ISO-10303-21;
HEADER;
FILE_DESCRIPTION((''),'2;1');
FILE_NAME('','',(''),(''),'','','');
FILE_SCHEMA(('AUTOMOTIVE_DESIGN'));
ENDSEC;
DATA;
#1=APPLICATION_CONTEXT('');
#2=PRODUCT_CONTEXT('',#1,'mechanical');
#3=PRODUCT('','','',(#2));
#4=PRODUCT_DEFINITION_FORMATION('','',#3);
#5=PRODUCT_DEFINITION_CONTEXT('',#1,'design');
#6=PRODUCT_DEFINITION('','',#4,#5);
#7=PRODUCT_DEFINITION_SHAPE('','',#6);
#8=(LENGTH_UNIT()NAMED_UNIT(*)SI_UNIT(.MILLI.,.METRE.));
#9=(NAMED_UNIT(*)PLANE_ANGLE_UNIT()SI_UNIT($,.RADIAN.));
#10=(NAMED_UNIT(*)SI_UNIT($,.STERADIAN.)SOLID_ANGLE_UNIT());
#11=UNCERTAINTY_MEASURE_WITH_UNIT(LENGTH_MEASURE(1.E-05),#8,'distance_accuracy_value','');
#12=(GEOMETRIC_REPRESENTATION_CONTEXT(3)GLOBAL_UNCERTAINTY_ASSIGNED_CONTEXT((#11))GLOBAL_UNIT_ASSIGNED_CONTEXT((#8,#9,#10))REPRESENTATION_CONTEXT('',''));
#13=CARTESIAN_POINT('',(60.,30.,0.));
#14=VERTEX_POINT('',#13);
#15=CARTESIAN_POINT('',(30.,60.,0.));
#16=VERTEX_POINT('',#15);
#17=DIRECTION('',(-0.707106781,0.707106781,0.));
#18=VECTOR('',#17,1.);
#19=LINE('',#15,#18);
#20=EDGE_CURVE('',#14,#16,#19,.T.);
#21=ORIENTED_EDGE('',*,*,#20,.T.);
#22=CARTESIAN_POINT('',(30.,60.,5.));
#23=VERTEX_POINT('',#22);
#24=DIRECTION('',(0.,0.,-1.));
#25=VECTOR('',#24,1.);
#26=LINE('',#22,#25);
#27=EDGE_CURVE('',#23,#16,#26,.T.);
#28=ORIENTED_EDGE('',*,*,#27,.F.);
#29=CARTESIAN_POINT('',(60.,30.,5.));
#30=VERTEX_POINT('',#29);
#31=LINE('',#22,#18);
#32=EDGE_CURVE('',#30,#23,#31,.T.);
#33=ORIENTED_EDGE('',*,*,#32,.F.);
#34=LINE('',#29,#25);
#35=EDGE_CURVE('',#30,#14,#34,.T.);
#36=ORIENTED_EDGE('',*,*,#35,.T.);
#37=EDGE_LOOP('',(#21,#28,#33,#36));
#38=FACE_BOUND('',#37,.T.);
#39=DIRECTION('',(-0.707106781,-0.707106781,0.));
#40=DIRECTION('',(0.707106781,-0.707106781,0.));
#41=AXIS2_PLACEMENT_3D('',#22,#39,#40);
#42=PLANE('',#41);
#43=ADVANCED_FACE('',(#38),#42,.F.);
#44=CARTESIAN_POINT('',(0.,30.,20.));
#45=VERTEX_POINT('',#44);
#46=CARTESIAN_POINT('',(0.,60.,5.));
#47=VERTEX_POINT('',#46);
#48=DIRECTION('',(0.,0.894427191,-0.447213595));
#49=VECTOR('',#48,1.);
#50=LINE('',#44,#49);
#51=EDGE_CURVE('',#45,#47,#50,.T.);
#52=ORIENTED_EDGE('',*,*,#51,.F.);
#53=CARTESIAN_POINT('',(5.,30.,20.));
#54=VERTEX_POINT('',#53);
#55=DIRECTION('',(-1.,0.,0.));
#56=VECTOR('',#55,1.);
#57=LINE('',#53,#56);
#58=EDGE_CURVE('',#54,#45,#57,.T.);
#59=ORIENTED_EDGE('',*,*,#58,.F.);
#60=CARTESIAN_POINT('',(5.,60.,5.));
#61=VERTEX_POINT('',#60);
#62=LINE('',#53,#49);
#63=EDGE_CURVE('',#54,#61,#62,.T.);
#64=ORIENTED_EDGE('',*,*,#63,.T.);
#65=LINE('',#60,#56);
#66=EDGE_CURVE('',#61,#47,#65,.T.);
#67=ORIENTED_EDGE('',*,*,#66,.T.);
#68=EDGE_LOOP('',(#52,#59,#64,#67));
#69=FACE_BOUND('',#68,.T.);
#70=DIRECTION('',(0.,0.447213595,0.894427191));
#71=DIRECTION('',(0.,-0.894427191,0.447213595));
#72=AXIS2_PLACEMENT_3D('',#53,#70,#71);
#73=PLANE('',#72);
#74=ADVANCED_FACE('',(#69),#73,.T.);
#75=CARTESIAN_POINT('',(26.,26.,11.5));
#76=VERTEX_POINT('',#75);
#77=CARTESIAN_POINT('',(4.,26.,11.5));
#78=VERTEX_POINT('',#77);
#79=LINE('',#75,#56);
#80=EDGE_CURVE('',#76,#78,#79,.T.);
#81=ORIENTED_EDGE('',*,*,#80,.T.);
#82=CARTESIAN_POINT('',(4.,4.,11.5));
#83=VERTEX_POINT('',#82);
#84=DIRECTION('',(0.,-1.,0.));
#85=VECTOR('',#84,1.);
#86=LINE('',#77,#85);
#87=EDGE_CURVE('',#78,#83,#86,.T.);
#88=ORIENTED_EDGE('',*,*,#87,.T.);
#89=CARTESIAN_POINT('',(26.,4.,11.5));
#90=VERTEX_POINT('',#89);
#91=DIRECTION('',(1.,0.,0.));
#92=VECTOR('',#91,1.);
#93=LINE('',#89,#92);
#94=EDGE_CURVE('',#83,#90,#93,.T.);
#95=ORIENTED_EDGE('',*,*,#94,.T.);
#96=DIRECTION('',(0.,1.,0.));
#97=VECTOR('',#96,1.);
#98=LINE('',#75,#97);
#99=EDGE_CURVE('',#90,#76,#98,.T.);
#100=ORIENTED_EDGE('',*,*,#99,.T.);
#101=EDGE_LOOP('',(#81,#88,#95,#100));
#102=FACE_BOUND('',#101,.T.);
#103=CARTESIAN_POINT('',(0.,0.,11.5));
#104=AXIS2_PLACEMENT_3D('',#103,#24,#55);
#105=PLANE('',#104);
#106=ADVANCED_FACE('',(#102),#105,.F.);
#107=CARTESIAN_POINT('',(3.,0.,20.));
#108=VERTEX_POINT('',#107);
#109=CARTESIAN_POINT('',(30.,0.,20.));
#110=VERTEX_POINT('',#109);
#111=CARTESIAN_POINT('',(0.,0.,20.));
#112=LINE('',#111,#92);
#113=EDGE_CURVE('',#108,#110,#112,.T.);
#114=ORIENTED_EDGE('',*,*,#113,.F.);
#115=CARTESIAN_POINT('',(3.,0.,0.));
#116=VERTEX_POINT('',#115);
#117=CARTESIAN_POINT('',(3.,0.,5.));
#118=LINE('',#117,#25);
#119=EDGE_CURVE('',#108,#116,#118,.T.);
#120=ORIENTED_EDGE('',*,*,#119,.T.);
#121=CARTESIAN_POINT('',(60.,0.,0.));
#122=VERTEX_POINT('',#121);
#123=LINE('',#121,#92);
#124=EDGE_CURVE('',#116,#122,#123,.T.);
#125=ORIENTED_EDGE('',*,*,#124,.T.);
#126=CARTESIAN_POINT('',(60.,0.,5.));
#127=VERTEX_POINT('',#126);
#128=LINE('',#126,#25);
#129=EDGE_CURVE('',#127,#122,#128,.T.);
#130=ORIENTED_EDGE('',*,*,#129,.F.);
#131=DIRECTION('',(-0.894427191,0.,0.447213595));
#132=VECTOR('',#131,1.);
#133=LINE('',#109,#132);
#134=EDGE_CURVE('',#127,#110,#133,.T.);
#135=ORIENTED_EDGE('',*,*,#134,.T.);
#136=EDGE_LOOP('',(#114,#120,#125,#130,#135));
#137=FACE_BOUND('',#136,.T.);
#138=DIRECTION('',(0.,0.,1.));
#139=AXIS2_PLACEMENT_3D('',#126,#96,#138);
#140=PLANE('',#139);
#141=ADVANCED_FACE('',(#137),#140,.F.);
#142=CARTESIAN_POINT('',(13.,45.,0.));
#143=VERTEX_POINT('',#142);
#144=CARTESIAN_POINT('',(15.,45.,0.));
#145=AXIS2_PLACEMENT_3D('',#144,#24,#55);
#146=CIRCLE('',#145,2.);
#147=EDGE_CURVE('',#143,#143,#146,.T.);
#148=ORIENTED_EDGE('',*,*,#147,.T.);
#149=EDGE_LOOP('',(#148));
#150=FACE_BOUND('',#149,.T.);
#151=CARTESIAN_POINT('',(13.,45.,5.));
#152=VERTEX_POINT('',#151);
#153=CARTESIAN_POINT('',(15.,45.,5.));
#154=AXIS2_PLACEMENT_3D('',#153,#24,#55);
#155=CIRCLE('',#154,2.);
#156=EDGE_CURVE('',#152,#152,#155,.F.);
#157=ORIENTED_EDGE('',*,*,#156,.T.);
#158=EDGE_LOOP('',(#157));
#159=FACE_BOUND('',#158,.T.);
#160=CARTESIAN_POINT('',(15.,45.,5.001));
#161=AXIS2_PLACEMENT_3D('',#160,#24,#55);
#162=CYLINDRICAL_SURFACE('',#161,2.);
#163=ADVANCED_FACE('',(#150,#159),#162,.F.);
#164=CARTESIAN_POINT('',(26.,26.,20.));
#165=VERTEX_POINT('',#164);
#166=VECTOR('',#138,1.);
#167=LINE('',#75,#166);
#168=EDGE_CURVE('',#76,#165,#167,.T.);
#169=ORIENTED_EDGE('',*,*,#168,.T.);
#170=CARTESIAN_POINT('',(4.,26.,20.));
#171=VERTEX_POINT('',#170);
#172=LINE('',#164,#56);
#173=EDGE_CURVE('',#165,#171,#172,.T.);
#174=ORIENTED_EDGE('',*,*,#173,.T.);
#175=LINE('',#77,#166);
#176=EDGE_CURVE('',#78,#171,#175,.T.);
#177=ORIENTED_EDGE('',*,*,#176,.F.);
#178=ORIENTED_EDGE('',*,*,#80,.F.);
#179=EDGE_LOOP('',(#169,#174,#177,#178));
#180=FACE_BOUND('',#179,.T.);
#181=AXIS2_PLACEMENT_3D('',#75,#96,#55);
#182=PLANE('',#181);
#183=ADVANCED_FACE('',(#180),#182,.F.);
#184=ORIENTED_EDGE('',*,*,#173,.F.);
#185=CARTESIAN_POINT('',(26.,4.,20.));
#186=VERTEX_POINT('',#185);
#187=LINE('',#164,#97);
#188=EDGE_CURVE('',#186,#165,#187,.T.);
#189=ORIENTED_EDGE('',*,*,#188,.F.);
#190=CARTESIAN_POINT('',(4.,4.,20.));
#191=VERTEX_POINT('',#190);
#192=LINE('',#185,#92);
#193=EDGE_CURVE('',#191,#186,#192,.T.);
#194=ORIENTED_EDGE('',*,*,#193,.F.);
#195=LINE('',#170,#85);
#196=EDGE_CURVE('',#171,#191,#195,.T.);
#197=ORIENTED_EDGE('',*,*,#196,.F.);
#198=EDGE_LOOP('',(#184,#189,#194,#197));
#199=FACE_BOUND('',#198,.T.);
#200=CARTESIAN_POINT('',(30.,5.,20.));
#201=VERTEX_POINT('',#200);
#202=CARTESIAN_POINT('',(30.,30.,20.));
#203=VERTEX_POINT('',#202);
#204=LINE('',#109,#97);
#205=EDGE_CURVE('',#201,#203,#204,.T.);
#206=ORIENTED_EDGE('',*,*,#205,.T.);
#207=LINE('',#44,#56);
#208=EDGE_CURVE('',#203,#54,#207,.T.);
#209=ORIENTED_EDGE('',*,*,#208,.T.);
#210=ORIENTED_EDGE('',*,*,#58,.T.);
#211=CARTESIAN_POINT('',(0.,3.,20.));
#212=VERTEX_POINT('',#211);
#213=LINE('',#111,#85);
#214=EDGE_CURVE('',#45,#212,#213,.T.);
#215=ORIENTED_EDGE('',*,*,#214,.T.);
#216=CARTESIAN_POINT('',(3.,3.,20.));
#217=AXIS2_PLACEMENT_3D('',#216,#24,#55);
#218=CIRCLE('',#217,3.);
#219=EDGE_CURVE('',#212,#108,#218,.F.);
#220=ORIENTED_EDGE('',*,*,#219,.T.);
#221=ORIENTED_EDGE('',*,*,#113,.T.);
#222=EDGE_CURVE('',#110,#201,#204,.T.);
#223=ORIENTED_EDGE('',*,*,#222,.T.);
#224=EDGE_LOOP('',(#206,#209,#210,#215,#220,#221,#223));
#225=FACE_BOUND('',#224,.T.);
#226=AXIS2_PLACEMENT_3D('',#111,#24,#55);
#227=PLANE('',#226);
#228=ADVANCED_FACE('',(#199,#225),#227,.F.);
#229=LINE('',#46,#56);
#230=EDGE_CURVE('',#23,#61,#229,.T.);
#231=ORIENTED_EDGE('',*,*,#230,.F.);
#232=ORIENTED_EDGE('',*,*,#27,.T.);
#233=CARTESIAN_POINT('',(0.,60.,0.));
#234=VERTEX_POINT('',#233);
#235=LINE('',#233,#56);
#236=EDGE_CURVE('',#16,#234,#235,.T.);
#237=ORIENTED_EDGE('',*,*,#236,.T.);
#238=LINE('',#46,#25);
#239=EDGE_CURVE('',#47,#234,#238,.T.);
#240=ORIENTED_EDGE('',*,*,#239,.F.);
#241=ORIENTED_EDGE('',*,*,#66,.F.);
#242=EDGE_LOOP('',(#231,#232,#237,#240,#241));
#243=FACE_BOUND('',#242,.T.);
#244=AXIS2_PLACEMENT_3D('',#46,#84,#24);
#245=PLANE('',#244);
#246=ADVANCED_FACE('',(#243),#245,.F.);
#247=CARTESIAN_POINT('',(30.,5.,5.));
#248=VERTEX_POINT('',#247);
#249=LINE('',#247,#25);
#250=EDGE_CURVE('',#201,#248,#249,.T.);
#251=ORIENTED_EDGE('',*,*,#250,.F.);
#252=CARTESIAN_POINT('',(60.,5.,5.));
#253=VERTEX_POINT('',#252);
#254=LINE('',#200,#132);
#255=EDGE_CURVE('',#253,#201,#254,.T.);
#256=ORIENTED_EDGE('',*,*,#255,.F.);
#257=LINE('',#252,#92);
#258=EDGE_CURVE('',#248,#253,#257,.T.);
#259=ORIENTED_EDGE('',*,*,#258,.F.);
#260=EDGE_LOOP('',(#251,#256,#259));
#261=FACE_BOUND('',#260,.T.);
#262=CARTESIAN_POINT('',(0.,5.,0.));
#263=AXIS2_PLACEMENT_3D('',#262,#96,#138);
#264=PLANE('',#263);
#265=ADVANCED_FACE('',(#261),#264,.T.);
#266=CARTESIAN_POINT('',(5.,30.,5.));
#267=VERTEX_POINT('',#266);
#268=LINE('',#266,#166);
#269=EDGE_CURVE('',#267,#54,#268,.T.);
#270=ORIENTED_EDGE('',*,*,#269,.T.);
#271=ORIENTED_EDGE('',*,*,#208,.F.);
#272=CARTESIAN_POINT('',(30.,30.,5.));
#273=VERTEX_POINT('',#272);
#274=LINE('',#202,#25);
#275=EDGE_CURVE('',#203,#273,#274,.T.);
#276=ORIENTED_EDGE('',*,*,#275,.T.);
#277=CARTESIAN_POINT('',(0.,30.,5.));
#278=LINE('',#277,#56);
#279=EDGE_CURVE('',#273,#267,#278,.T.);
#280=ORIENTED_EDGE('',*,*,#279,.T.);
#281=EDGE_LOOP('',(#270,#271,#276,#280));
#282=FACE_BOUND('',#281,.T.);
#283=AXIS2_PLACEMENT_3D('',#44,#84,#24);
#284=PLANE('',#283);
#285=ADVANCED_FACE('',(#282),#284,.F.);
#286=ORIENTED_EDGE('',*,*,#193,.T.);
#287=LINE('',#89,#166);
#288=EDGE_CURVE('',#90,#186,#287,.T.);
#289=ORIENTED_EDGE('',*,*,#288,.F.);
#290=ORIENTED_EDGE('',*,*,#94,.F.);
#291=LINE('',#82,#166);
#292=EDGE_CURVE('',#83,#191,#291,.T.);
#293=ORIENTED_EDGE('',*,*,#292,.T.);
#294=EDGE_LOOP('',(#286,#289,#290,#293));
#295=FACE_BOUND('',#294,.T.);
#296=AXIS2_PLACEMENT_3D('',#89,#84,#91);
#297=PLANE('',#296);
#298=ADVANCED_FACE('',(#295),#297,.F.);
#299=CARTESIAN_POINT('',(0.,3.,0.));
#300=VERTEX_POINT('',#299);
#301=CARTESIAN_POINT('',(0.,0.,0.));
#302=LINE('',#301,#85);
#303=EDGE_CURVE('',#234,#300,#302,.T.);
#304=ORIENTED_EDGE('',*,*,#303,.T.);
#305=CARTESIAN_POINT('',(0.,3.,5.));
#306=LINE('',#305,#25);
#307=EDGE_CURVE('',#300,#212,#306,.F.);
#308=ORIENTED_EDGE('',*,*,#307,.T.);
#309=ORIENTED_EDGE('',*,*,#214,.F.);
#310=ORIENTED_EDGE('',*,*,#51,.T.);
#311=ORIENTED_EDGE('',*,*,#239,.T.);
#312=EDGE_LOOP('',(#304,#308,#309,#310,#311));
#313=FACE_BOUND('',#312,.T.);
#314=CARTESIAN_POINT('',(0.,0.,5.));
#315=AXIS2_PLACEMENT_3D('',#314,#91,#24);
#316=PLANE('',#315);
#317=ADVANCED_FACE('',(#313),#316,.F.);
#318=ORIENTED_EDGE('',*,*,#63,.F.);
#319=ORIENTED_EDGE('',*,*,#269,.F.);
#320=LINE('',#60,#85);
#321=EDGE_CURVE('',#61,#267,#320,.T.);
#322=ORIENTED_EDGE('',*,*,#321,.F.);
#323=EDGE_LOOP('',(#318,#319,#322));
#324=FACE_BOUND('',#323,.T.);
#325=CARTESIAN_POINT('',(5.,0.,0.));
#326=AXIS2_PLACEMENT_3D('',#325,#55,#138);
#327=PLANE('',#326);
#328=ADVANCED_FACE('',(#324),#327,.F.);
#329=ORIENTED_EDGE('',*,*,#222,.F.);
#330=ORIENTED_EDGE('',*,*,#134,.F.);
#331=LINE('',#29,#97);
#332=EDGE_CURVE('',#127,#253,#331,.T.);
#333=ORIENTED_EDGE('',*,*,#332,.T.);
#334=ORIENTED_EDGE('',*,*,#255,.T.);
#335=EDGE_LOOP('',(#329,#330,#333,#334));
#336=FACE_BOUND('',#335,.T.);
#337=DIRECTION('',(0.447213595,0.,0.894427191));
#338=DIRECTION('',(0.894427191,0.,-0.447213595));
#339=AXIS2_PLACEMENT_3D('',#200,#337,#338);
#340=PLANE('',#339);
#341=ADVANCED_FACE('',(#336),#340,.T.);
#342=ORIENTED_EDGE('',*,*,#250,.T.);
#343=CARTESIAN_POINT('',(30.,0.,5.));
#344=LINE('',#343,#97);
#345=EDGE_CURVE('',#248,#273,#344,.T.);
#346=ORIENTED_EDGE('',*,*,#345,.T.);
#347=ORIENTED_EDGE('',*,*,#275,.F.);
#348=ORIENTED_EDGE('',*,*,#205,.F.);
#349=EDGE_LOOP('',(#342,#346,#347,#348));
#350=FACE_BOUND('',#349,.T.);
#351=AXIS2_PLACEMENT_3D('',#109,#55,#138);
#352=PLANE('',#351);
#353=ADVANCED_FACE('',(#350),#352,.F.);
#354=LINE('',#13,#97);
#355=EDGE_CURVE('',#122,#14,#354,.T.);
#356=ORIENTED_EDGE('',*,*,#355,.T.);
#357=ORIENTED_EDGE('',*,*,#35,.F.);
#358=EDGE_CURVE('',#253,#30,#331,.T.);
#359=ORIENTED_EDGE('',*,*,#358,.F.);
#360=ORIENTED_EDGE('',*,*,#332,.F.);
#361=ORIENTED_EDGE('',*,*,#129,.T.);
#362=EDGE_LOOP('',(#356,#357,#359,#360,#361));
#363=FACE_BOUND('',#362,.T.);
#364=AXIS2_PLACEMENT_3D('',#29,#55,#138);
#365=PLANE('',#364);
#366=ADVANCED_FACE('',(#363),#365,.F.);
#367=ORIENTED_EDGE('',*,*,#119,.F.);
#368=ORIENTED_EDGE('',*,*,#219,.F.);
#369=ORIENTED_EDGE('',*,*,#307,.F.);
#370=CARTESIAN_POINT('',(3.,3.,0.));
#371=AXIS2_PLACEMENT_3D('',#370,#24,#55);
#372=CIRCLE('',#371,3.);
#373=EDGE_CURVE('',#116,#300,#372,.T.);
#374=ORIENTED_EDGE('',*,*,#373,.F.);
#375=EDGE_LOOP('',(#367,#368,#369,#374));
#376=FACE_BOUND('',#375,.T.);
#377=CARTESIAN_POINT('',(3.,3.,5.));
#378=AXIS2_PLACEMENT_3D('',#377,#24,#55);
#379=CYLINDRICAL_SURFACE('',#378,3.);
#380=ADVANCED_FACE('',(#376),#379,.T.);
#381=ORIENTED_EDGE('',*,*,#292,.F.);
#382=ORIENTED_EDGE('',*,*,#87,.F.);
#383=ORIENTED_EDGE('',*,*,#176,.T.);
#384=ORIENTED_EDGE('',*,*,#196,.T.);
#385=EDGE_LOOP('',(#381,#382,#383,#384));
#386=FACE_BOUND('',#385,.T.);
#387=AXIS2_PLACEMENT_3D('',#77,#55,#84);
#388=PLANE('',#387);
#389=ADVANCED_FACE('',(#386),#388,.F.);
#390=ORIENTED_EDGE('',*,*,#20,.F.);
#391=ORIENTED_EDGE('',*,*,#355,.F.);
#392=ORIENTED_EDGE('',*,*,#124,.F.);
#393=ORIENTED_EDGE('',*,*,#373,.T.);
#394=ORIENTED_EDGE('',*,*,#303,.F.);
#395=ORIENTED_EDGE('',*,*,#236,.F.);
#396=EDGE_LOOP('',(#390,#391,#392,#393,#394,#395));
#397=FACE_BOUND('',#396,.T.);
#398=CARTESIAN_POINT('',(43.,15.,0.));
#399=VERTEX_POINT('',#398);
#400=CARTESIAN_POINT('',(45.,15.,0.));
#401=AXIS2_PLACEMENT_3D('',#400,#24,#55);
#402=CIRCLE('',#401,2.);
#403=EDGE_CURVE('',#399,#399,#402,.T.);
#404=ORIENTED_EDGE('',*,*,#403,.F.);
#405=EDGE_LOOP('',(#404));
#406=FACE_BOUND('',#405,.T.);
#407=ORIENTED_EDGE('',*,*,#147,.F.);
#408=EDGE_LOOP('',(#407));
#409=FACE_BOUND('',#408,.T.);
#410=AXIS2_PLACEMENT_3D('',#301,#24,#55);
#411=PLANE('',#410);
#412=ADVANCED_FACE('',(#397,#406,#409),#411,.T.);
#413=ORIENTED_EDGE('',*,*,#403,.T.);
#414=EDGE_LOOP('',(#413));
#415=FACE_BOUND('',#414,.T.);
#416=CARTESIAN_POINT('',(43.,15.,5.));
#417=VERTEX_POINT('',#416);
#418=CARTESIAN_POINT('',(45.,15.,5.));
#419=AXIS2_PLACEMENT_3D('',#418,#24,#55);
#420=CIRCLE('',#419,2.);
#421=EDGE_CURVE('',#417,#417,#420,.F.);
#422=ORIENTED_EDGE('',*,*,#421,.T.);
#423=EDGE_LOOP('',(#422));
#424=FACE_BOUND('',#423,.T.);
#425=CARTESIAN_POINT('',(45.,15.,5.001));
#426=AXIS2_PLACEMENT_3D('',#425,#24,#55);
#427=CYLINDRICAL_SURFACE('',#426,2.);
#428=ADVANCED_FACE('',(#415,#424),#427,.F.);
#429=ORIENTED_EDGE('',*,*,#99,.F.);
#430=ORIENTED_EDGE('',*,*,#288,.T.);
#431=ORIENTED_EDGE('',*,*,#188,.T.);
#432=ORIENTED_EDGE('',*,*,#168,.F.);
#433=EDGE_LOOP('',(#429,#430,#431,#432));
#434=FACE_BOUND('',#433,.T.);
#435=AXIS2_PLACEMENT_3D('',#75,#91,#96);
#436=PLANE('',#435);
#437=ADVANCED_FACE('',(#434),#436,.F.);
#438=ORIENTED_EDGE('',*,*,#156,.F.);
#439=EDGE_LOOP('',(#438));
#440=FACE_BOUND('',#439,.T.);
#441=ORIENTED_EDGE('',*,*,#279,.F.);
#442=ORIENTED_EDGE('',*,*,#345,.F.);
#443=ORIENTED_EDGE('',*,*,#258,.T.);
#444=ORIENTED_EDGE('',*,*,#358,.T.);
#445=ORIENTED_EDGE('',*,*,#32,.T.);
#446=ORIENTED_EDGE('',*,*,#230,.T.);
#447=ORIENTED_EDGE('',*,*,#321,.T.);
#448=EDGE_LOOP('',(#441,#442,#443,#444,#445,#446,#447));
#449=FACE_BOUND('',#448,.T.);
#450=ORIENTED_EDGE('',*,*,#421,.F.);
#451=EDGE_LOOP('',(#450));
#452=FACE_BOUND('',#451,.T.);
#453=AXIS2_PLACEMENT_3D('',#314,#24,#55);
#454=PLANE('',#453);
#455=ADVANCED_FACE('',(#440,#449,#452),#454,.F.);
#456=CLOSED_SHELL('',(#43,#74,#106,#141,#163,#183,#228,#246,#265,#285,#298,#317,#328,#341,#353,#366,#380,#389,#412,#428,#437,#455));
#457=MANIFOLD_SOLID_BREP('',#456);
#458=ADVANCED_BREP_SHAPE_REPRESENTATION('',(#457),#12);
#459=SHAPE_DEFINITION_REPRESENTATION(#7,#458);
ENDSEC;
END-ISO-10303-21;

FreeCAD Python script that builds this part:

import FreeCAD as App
import Part
import Sketcher
from FreeCAD import Vector


def edges_at(feature, points):
    """Names of the edges that pass closest to the given points."""
    edges = feature.Shape.Edges
    near = lambda p: min(range(len(edges)), key=lambda i: edges[i].distToShape(Part.Vertex(*p))[0])
    return sorted({f"Edge{near(p) + 1}" for p in points})


def add_polygon(sketch, points):
    """Adds a closed chain of lines whose ends are joined by coincident constraints."""
    first, n = sketch.GeometryCount, len(points)
    for a, b in zip(points, points[1:] + points[:1]):
        sketch.addGeometry(Part.LineSegment(App.Vector(*a, 0), App.Vector(*b, 0)), False)
    for i in range(n):
        sketch.addConstraint(Sketcher.Constraint("Coincident", first + i, 2, first + (i + 1) % n, 1))

doc = App.newDocument("Part")
body = doc.addObject("PartDesign::Body", "Body")

# Sketch on XY plane
sketch1 = body.newObject("Sketcher::SketchObject", "Sketch")
sketch1.AttachmentSupport = (doc.getObject("XY_Plane"), [""])
sketch1.MapMode = "FlatFace"
add_polygon(sketch1, [(0, 60), (0, 0), (60, 0), (60, 30), (30, 60)])  # lines 0-4
sketch1.addConstraint([
    Sketcher.Constraint("Vertical", 0),
    Sketcher.Constraint("Horizontal", 1),
    Sketcher.Constraint("Vertical", 2),
    Sketcher.Constraint("Horizontal", 4),
    Sketcher.Constraint("Coincident", 0, 2, -1, 1),
    Sketcher.Constraint("Equal", 1, 0),
    Sketcher.Constraint("Equal", 4, 2),
    Sketcher.Constraint("DistanceX", 1, 1, 1, 2, 60.0),
    Sketcher.Constraint("DistanceX", 4, 2, 4, 1, 30.0),
])
pad1 = body.newObject("PartDesign::Pad", "Pad")
pad1.Profile = sketch1
pad1.Length = 5

# Sketch on XY plane
sketch2 = body.newObject("Sketcher::SketchObject", "Sketch001")
sketch2.AttachmentSupport = (doc.getObject("XY_Plane"), [""])
sketch2.MapMode = "FlatFace"
sketch2.addGeometry(Part.Circle(Vector(45, 15, 0), Vector(0, 0, 1), 2), False)
sketch2.addConstraint([
    Sketcher.Constraint("Diameter", 0, 4.0),
    Sketcher.Constraint("DistanceX", -1, 1, 0, 3, 45.0),
    Sketcher.Constraint("DistanceY", -1, 1, 0, 3, 15.0),
])
pocket1 = body.newObject("PartDesign::Pocket", "Pocket")
pocket1.Profile = sketch2
pocket1.Type = "UpToFirst"
pocket1.Reversed = True

# Sketch on XY plane
sketch3 = body.newObject("Sketcher::SketchObject", "Sketch002")
sketch3.AttachmentSupport = (doc.getObject("XY_Plane"), [""])
sketch3.MapMode = "FlatFace"
sketch3.addGeometry(Part.Circle(Vector(15, 45, 0), Vector(0, 0, 1), 2), False)
sketch3.addConstraint([
    Sketcher.Constraint("Diameter", 0, 4.0),
    Sketcher.Constraint("DistanceX", -1, 1, 0, 3, 15.0),
    Sketcher.Constraint("DistanceY", -1, 1, 0, 3, 45.0),
])
pocket2 = body.newObject("PartDesign::Pocket", "Pocket001")
pocket2.Profile = sketch3
pocket2.Type = "UpToFirst"
pocket2.Reversed = True

# Sketch on XY plane
sketch4 = body.newObject("Sketcher::SketchObject", "Sketch003")
sketch4.AttachmentSupport = (doc.getObject("XY_Plane"), [""])
sketch4.MapMode = "FlatFace"
sketch4.AttachmentOffset = App.Placement(Vector(0, 0, 5), App.Rotation())
add_polygon(sketch4, [(0, 30), (0, 0), (30, 0), (30, 30)])  # lines 0-3
sketch4.addConstraint([
    Sketcher.Constraint("Vertical", 0),
    Sketcher.Constraint("Horizontal", 1),
    Sketcher.Constraint("Vertical", 2),
    Sketcher.Constraint("Horizontal", 3),
    Sketcher.Constraint("Coincident", 0, 2, -1, 1),
    Sketcher.Constraint("Equal", 3, 0),
    Sketcher.Constraint("DistanceX", 1, 1, 1, 2, 30.0),
])
pad2 = body.newObject("PartDesign::Pad", "Pad001")
pad2.Profile = sketch4
pad2.Length = 15

# Sketch on XZ plane
sketch5 = body.newObject("Sketcher::SketchObject", "Sketch004")
sketch5.AttachmentSupport = (doc.getObject("XZ_Plane"), [""])
sketch5.MapMode = "FlatFace"
add_polygon(sketch5, [(30, 20), (30, 5), (60, 5)])  # lines 0-2
sketch5.addConstraint([
    Sketcher.Constraint("Vertical", 0),
    Sketcher.Constraint("Horizontal", 1),
    Sketcher.Constraint("DistanceX", 1, 1, 1, 2, 30.0),
    Sketcher.Constraint("DistanceY", 0, 2, 0, 1, 15.0),
    Sketcher.Constraint("DistanceX", -1, 1, 0, 2, 30.0),
    Sketcher.Constraint("DistanceY", -1, 1, 0, 2, 5.0),
])
pad3 = body.newObject("PartDesign::Pad", "Pad002")
pad3.Profile = sketch5
pad3.Length = 5
pad3.Reversed = True

# Sketch on YZ plane
sketch6 = body.newObject("Sketcher::SketchObject", "Sketch005")
sketch6.AttachmentSupport = (doc.getObject("YZ_Plane"), [""])
sketch6.MapMode = "FlatFace"
add_polygon(sketch6, [(30, 5), (30, 20), (60, 5)])  # lines 0-2
sketch6.addConstraint([
    Sketcher.Constraint("Vertical", 0),
    Sketcher.Constraint("Horizontal", 2),
    Sketcher.Constraint("DistanceX", 2, 2, 2, 1, 30.0),
    Sketcher.Constraint("DistanceY", 0, 1, 0, 2, 15.0),
    Sketcher.Constraint("DistanceX", -1, 1, 0, 2, 30.0),
    Sketcher.Constraint("DistanceY", -1, 1, 0, 2, 20.0),
])
pad4 = body.newObject("PartDesign::Pad", "Pad003")
pad4.Profile = sketch6
pad4.Length = 5
doc.recompute()

fillet = body.newObject("PartDesign::Fillet", "Fillet")
fillet.Base = (pad4, edges_at(pad4, [(0, 0, 10)]))
fillet.Radius = 3

# Sketch on XY plane
sketch7 = body.newObject("Sketcher::SketchObject", "Sketch006")
sketch7.AttachmentSupport = (doc.getObject("XY_Plane"), [""])
sketch7.MapMode = "FlatFace"
sketch7.AttachmentOffset = App.Placement(Vector(0, 0, 20), App.Rotation())
add_polygon(sketch7, [(4, 26), (4, 4), (26, 4), (26, 26)])  # lines 0-3
sketch7.addConstraint([
    Sketcher.Constraint("Vertical", 0),
    Sketcher.Constraint("Horizontal", 1),
    Sketcher.Constraint("Vertical", 2),
    Sketcher.Constraint("Horizontal", 3),
    Sketcher.Constraint("Equal", 3, 0),
    Sketcher.Constraint("DistanceX", 1, 1, 1, 2, 22.0),
    Sketcher.Constraint("DistanceX", -1, 1, 0, 2, 4.0),
    Sketcher.Constraint("DistanceY", -1, 1, 0, 2, 4.0),
])
pocket3 = body.newObject("PartDesign::Pocket", "Pocket002")
pocket3.Profile = sketch7
pocket3.Length = 8.5

doc.recompute()
